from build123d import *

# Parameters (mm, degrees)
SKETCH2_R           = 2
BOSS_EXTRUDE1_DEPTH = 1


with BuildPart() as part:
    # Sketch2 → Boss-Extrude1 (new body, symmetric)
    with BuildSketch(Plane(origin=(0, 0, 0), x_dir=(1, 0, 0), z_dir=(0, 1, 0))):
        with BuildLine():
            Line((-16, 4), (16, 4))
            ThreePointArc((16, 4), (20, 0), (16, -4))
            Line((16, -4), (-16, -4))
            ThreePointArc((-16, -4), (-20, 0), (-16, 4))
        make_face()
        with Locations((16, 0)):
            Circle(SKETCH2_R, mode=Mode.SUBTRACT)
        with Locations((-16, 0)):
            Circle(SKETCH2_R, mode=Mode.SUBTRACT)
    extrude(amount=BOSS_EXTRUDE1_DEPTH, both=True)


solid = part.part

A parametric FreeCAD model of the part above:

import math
import FreeCAD as App
import Part
import Sketcher
from FreeCAD import Vector
Q = App.Units.Quantity

doc = App.newDocument("Part")
body = doc.addObject("PartDesign::Body", "Body")

# Sketch on XZ plane
sketch1 = doc.addObject("Sketcher::SketchObject", "Sketch")
body.addObject(sketch1)
sketch1.AttachmentSupport = (doc.XZ_Plane, [""])
sketch1.MapMode = "FlatFace"
sketch1.addGeometry([
    Part.LineSegment(Vector(16, -4, 0), Vector(-16, -4, 0)),  # 0
    Part.ArcOfCircle(Part.Circle(Vector(-16, 0, 0), Vector(0, 0, 1), 4), math.radians(90), math.radians(270)),  # 1
    Part.LineSegment(Vector(-16, 4, 0), Vector(16, 4, 0)),  # 2
    Part.ArcOfCircle(Part.Circle(Vector(16, 0, 0), Vector(0, 0, 1), 4), math.radians(-90), math.radians(90)),  # 3
    Part.Circle(Vector(16, 0, 0), Vector(0, 0, 1), 2),  # 4
    Part.Circle(Vector(-16, 0, 0), Vector(0, 0, 1), 2),  # 5
], False)
sketch1.addConstraint([
    Sketcher.Constraint("Tangent", 0, 2, 1, 2),
    Sketcher.Constraint("Tangent", 1, 1, 2, 1),
    Sketcher.Constraint("Tangent", 2, 2, 3, 2),
    Sketcher.Constraint("Tangent", 3, 1, 0, 1),
    Sketcher.Constraint("Horizontal", 0),
    Sketcher.Constraint("Horizontal", 2),
    Sketcher.Constraint("Coincident", 4, 3, 3, 3),
    Sketcher.Constraint("Coincident", 5, 3, 1, 3),
    Sketcher.Constraint("Equal", 4, 5),
    Sketcher.Constraint("Symmetric", 1, 3, 3, 3, -1, 1),
    Sketcher.Constraint("Diameter", 4, Q("4 mm")),
    Sketcher.Constraint("Radius", 1, Q("4 mm")),
    Sketcher.Constraint("DistanceX", 0, 2, 0, 1, Q("32 mm")),
])
pad1 = doc.addObject("PartDesign::Pad", "Pad")
body.addObject(pad1)
pad1.Profile = sketch1
pad1.Length = 2
pad1.Midplane = True

doc.recompute()
